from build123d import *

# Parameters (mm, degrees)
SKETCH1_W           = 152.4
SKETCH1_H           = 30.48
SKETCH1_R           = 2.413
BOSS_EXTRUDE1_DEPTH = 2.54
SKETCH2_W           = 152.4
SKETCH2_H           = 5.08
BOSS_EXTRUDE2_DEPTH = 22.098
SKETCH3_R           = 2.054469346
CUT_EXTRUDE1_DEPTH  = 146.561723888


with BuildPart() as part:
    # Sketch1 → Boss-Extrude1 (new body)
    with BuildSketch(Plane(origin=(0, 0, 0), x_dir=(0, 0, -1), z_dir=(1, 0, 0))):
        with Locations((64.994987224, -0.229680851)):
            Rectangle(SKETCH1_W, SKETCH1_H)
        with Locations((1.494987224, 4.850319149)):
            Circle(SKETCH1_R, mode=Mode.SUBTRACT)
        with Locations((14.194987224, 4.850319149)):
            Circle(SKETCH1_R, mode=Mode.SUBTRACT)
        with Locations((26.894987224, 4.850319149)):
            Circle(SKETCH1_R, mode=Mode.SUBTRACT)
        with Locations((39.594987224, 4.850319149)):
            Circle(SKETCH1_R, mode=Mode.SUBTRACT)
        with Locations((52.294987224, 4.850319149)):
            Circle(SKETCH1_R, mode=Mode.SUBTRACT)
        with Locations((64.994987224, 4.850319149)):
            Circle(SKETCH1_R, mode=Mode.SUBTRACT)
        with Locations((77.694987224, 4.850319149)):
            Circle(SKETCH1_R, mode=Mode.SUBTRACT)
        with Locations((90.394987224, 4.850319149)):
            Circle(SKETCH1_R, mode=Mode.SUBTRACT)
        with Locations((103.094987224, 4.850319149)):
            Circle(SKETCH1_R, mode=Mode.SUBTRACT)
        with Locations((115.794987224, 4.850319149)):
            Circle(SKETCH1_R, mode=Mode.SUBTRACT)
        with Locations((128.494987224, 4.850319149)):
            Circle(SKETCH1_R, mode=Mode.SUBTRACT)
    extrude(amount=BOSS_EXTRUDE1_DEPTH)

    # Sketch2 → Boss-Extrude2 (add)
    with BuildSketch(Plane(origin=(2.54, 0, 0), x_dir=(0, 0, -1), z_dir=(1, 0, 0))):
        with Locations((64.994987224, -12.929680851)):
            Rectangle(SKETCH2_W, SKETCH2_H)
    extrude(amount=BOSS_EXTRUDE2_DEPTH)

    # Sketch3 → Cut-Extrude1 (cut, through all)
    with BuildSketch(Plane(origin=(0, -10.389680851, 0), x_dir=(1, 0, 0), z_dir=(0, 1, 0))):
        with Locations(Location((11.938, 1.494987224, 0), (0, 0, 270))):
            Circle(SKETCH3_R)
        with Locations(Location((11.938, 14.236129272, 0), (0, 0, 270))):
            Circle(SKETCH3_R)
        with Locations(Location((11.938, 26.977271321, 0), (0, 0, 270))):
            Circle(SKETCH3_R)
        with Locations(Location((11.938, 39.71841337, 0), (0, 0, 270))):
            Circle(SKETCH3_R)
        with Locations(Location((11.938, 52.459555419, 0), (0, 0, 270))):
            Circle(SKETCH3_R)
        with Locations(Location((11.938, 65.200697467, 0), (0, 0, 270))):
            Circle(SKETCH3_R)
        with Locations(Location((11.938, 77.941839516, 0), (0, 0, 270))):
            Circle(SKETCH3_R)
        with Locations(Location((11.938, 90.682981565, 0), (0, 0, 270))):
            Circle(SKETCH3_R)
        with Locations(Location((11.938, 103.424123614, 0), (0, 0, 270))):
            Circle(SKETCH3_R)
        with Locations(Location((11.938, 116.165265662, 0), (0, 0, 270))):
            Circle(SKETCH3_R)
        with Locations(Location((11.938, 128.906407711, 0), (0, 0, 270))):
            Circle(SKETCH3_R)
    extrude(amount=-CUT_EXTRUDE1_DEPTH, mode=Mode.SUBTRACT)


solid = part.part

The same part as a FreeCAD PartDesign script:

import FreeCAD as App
import Part
import Sketcher
Q = App.Units.Quantity

doc = App.newDocument("Part")
body = doc.addObject("PartDesign::Body", "Body")

# Sketch on YZ plane
sketch1 = body.newObject("Sketcher::SketchObject", "Sketch")
sketch1.AttachmentSupport = (doc.getObject("YZ_Plane"), [""])
sketch1.MapMode = "FlatFace"
sketch1.addGeometry([
    Part.LineSegment(App.Vector(15.010319, 11.205013, 0), App.Vector(-15.469681, 11.205013, 0)),  # 0
    Part.LineSegment(App.Vector(-15.469681, 11.205013, 0), App.Vector(-15.469681, -141.194987, 0)),  # 1
    Part.LineSegment(App.Vector(-15.469681, -141.194987, 0), App.Vector(15.010319, -141.194987, 0)),  # 2
    Part.LineSegment(App.Vector(15.010319, -141.194987, 0), App.Vector(15.010319, 11.205013, 0)),  # 3
    Part.Circle(App.Vector(4.850319, -1.494987, 0), App.Vector(0, 0, 1), 2.413),  # 4
    Part.Circle(App.Vector(4.850319, -14.194987, 0), App.Vector(0, 0, 1), 2.413),  # 5
    Part.Circle(App.Vector(4.850319, -26.894987, 0), App.Vector(0, 0, 1), 2.413),  # 6
    Part.Circle(App.Vector(4.850319, -39.594987, 0), App.Vector(0, 0, 1), 2.413),  # 7
    Part.Circle(App.Vector(4.850319, -52.294987, 0), App.Vector(0, 0, 1), 2.413),  # 8
    Part.Circle(App.Vector(4.850319, -64.994987, 0), App.Vector(0, 0, 1), 2.413),  # 9
    Part.Circle(App.Vector(4.850319, -77.694987, 0), App.Vector(0, 0, 1), 2.413),  # 10
    Part.Circle(App.Vector(4.850319, -90.394987, 0), App.Vector(0, 0, 1), 2.413),  # 11
    Part.Circle(App.Vector(4.850319, -103.094987, 0), App.Vector(0, 0, 1), 2.413),  # 12
    Part.Circle(App.Vector(4.850319, -115.794987, 0), App.Vector(0, 0, 1), 2.413),  # 13
    Part.Circle(App.Vector(4.850319, -128.494987, 0), App.Vector(0, 0, 1), 2.413),  # 14
], False)
sketch1.addConstraint([
    Sketcher.Constraint("Coincident", 0, 2, 1, 1),
    Sketcher.Constraint("Coincident", 1, 2, 2, 1),
    Sketcher.Constraint("Coincident", 2, 2, 3, 1),
    Sketcher.Constraint("Coincident", 3, 2, 0, 1),
    Sketcher.Constraint("Horizontal", 0),
    Sketcher.Constraint("Vertical", 1),
    Sketcher.Constraint("Horizontal", 2),
    Sketcher.Constraint("Vertical", 3),
    Sketcher.Constraint("Equal", 4, 5),
    Sketcher.Constraint("Equal", 5, 6),
    Sketcher.Constraint("Equal", 6, 7),
    Sketcher.Constraint("Equal", 7, 8),
    Sketcher.Constraint("Equal", 8, 9),
    Sketcher.Constraint("Equal", 9, 10),
    Sketcher.Constraint("Equal", 10, 11),
    Sketcher.Constraint("Equal", 11, 12),
    Sketcher.Constraint("Equal", 12, 13),
    Sketcher.Constraint("Equal", 13, 14),
    Sketcher.Constraint("Vertical", 4, 3, 5, 3),
    Sketcher.Constraint("Vertical", 5, 3, 6, 3),
    Sketcher.Constraint("Vertical", 6, 3, 7, 3),
    Sketcher.Constraint("Vertical", 7, 3, 8, 3),
    Sketcher.Constraint("Vertical", 8, 3, 9, 3),
    Sketcher.Constraint("Vertical", 9, 3, 10, 3),
    Sketcher.Constraint("Vertical", 10, 3, 11, 3),
    Sketcher.Constraint("Vertical", 11, 3, 12, 3),
    Sketcher.Constraint("Vertical", 12, 3, 13, 3),
    Sketcher.Constraint("Vertical", 13, 3, 14, 3),
    Sketcher.Constraint("Diameter", 4, Q("0.19 in")),
    Sketcher.Constraint("DistanceY", 1, 2, 1, 1, Q("6 in")),
    Sketcher.Constraint("DistanceX", 0, 2, 0, 1, Q("1.2 in")),
    Sketcher.Constraint("DistanceY", 6, 3, 4, 3, Q("1 in")),
    Sketcher.Constraint("DistanceY", 7, 3, 5, 3, Q("1 in")),
    Sketcher.Constraint("DistanceY", 8, 3, 6, 3, Q("1 in")),
    Sketcher.Constraint("DistanceY", 9, 3, 7, 3, Q("1 in")),
    Sketcher.Constraint("DistanceY", 10, 3, 8, 3, Q("1 in")),
    Sketcher.Constraint("DistanceY", 11, 3, 9, 3, Q("1 in")),
    Sketcher.Constraint("DistanceY", 12, 3, 10, 3, Q("1 in")),
    Sketcher.Constraint("DistanceY", 13, 3, 11, 3, Q("1 in")),
    Sketcher.Constraint("DistanceY", 14, 3, 12, 3, Q("1 in")),
    Sketcher.Constraint("DistanceY", 5, 3, 0, 2, Q("1 in")),
    Sketcher.Constraint("DistanceY", 5, 3, 4, 3, Q("0.5 in")),
    Sketcher.Constraint("DistanceX", 0, 2, 4, 3, Q("0.8 in")),
    Sketcher.Constraint("DistanceX", -1, 1, 4, 3, Q("4.850319 mm")),
    Sketcher.Constraint("DistanceY", 4, 3, -1, 1, Q("1.494987 mm")),
])
pad1 = body.newObject("PartDesign::Pad", "Pad")
pad1.Profile = sketch1
pad1.Length = Q("0.1 in")

# Sketch on YZ plane
sketch2 = body.newObject("Sketcher::SketchObject", "Sketch001")
sketch2.AttachmentSupport = (doc.getObject("YZ_Plane"), [""])
sketch2.MapMode = "FlatFace"
sketch2.AttachmentOffset = App.Placement(App.Vector(0, 0, 0.1 * 25.4), App.Rotation())
sketch2.addGeometry([
    Part.LineSegment(App.Vector(-10.389681, 11.205013, 0), App.Vector(-15.469681, 11.205013, 0)),
    Part.LineSegment(App.Vector(-15.469681, 11.205013, 0), App.Vector(-15.469681, -141.194987, 0)),
    Part.LineSegment(App.Vector(-15.469681, -141.194987, 0), App.Vector(-10.389681, -141.194987, 0)),
    Part.LineSegment(App.Vector(-10.389681, -141.194987, 0), App.Vector(-10.389681, 11.205013, 0)),
], False)
sketch2.addConstraint([
    Sketcher.Constraint("Coincident", 0, 2, 1, 1),
    Sketcher.Constraint("Coincident", 1, 2, 2, 1),
    Sketcher.Constraint("Coincident", 2, 2, 3, 1),
    Sketcher.Constraint("Coincident", 3, 2, 0, 1),
    Sketcher.Constraint("Horizontal", 0),
    Sketcher.Constraint("Vertical", 1),
    Sketcher.Constraint("Horizontal", 2),
    Sketcher.Constraint("Vertical", 3),
    Sketcher.Constraint("DistanceY", 1, 2, 1, 1, Q("6 in")),
    Sketcher.Constraint("DistanceX", 0, 2, 0, 1, Q("0.2 in")),
    Sketcher.Constraint("DistanceX", 0, 2, -1, 1, Q("15.469681 mm")),
    Sketcher.Constraint("DistanceY", -1, 1, 0, 2, Q("11.205013 mm")),
])
pad2 = body.newObject("PartDesign::Pad", "Pad001")
pad2.Profile = sketch2
pad2.Length = Q("0.87 in")

# Sketch on XZ plane
sketch3 = body.newObject("Sketcher::SketchObject", "Sketch002")
sketch3.AttachmentSupport = (doc.getObject("XZ_Plane"), [""])
sketch3.MapMode = "FlatFace"
sketch3.AttachmentOffset = App.Placement(App.Vector(0, 0, 10.389681), App.Rotation())
sketch3.addGeometry([
    Part.Circle(App.Vector(11.938, -1.494987, 0), App.Vector(0, 0, 1), 2.054469),  # 0
    Part.Circle(App.Vector(11.938, -14.236129, 0), App.Vector(0, 0, 1), 2.054469),  # 1
    Part.Circle(App.Vector(11.938, -26.977271, 0), App.Vector(0, 0, 1), 2.054469),  # 2
    Part.Circle(App.Vector(11.938, -39.718413, 0), App.Vector(0, 0, 1), 2.054469),  # 3
    Part.Circle(App.Vector(11.938, -52.459555, 0), App.Vector(0, 0, 1), 2.054469),  # 4
    Part.Circle(App.Vector(11.938, -65.200697, 0), App.Vector(0, 0, 1), 2.054469),  # 5
    Part.Circle(App.Vector(11.938, -77.94184, 0), App.Vector(0, 0, 1), 2.054469),  # 6
    Part.Circle(App.Vector(11.938, -90.682982, 0), App.Vector(0, 0, 1), 2.054469),  # 7
    Part.Circle(App.Vector(11.938, -103.424124, 0), App.Vector(0, 0, 1), 2.054469),  # 8
    Part.Circle(App.Vector(11.938, -116.165266, 0), App.Vector(0, 0, 1), 2.054469),  # 9
    Part.Circle(App.Vector(11.938, -128.906408, 0), App.Vector(0, 0, 1), 2.054469),  # 10
], False)
sketch3.addConstraint([
    Sketcher.Constraint("Equal", 0, 1),
    Sketcher.Constraint("Equal", 1, 2),
    Sketcher.Constraint("Equal", 2, 3),
    Sketcher.Constraint("Equal", 3, 4),
    Sketcher.Constraint("Equal", 4, 5),
    Sketcher.Constraint("Equal", 5, 6),
    Sketcher.Constraint("Equal", 6, 7),
    Sketcher.Constraint("Equal", 7, 8),
    Sketcher.Constraint("Equal", 8, 9),
    Sketcher.Constraint("Equal", 9, 10),
    Sketcher.Constraint("Vertical", 0, 3, 1, 3),
    Sketcher.Constraint("Vertical", 1, 3, 2, 3),
    Sketcher.Constraint("Vertical", 2, 3, 3, 3),
    Sketcher.Constraint("Vertical", 3, 3, 4, 3),
    Sketcher.Constraint("Vertical", 4, 3, 5, 3),
    Sketcher.Constraint("Vertical", 5, 3, 6, 3),
    Sketcher.Constraint("Vertical", 6, 3, 7, 3),
    Sketcher.Constraint("Vertical", 7, 3, 8, 3),
    Sketcher.Constraint("Vertical", 8, 3, 9, 3),
    Sketcher.Constraint("Vertical", 9, 3, 10, 3),
    Sketcher.Constraint("DistanceX", -1, 1, 0, 3, Q("0.47 in")),
    Sketcher.Constraint("Diameter", 0, Q("4.108939 mm")),
    Sketcher.Constraint("DistanceY", 1, 3, -1, 1, Q("14.236129 mm")),
    Sketcher.Constraint("DistanceY", 2, 3, -1, 1, Q("26.977271 mm")),
    Sketcher.Constraint("DistanceY", 6, 3, -1, 1, Q("77.94184 mm")),
    Sketcher.Constraint("DistanceY", 7, 3, -1, 1, Q("90.682982 mm")),
    Sketcher.Constraint("DistanceY", 4, 3, 0, 3, Q("50.964568 mm")),
    Sketcher.Constraint("DistanceY", 5, 3, 1, 3, Q("50.964568 mm")),
    Sketcher.Constraint("DistanceY", 5, 3, 0, 3, Q("63.70571 mm")),
    Sketcher.Constraint("DistanceY", 7, 3, 3, 3, Q("50.964568 mm")),
    Sketcher.Constraint("DistanceY", 8, 3, 4, 3, Q("50.964568 mm")),
    Sketcher.Constraint("DistanceY", 9, 3, 5, 3, Q("50.964568 mm")),
    Sketcher.Constraint("DistanceY", 10, 3, 6, 3, Q("50.964568 mm")),
])
pocket1 = body.newObject("PartDesign::Pocket", "Pocket")
pocket1.Profile = sketch3
pocket1.Type = "ThroughAll"
pocket1.Reversed = True

doc.recompute()
